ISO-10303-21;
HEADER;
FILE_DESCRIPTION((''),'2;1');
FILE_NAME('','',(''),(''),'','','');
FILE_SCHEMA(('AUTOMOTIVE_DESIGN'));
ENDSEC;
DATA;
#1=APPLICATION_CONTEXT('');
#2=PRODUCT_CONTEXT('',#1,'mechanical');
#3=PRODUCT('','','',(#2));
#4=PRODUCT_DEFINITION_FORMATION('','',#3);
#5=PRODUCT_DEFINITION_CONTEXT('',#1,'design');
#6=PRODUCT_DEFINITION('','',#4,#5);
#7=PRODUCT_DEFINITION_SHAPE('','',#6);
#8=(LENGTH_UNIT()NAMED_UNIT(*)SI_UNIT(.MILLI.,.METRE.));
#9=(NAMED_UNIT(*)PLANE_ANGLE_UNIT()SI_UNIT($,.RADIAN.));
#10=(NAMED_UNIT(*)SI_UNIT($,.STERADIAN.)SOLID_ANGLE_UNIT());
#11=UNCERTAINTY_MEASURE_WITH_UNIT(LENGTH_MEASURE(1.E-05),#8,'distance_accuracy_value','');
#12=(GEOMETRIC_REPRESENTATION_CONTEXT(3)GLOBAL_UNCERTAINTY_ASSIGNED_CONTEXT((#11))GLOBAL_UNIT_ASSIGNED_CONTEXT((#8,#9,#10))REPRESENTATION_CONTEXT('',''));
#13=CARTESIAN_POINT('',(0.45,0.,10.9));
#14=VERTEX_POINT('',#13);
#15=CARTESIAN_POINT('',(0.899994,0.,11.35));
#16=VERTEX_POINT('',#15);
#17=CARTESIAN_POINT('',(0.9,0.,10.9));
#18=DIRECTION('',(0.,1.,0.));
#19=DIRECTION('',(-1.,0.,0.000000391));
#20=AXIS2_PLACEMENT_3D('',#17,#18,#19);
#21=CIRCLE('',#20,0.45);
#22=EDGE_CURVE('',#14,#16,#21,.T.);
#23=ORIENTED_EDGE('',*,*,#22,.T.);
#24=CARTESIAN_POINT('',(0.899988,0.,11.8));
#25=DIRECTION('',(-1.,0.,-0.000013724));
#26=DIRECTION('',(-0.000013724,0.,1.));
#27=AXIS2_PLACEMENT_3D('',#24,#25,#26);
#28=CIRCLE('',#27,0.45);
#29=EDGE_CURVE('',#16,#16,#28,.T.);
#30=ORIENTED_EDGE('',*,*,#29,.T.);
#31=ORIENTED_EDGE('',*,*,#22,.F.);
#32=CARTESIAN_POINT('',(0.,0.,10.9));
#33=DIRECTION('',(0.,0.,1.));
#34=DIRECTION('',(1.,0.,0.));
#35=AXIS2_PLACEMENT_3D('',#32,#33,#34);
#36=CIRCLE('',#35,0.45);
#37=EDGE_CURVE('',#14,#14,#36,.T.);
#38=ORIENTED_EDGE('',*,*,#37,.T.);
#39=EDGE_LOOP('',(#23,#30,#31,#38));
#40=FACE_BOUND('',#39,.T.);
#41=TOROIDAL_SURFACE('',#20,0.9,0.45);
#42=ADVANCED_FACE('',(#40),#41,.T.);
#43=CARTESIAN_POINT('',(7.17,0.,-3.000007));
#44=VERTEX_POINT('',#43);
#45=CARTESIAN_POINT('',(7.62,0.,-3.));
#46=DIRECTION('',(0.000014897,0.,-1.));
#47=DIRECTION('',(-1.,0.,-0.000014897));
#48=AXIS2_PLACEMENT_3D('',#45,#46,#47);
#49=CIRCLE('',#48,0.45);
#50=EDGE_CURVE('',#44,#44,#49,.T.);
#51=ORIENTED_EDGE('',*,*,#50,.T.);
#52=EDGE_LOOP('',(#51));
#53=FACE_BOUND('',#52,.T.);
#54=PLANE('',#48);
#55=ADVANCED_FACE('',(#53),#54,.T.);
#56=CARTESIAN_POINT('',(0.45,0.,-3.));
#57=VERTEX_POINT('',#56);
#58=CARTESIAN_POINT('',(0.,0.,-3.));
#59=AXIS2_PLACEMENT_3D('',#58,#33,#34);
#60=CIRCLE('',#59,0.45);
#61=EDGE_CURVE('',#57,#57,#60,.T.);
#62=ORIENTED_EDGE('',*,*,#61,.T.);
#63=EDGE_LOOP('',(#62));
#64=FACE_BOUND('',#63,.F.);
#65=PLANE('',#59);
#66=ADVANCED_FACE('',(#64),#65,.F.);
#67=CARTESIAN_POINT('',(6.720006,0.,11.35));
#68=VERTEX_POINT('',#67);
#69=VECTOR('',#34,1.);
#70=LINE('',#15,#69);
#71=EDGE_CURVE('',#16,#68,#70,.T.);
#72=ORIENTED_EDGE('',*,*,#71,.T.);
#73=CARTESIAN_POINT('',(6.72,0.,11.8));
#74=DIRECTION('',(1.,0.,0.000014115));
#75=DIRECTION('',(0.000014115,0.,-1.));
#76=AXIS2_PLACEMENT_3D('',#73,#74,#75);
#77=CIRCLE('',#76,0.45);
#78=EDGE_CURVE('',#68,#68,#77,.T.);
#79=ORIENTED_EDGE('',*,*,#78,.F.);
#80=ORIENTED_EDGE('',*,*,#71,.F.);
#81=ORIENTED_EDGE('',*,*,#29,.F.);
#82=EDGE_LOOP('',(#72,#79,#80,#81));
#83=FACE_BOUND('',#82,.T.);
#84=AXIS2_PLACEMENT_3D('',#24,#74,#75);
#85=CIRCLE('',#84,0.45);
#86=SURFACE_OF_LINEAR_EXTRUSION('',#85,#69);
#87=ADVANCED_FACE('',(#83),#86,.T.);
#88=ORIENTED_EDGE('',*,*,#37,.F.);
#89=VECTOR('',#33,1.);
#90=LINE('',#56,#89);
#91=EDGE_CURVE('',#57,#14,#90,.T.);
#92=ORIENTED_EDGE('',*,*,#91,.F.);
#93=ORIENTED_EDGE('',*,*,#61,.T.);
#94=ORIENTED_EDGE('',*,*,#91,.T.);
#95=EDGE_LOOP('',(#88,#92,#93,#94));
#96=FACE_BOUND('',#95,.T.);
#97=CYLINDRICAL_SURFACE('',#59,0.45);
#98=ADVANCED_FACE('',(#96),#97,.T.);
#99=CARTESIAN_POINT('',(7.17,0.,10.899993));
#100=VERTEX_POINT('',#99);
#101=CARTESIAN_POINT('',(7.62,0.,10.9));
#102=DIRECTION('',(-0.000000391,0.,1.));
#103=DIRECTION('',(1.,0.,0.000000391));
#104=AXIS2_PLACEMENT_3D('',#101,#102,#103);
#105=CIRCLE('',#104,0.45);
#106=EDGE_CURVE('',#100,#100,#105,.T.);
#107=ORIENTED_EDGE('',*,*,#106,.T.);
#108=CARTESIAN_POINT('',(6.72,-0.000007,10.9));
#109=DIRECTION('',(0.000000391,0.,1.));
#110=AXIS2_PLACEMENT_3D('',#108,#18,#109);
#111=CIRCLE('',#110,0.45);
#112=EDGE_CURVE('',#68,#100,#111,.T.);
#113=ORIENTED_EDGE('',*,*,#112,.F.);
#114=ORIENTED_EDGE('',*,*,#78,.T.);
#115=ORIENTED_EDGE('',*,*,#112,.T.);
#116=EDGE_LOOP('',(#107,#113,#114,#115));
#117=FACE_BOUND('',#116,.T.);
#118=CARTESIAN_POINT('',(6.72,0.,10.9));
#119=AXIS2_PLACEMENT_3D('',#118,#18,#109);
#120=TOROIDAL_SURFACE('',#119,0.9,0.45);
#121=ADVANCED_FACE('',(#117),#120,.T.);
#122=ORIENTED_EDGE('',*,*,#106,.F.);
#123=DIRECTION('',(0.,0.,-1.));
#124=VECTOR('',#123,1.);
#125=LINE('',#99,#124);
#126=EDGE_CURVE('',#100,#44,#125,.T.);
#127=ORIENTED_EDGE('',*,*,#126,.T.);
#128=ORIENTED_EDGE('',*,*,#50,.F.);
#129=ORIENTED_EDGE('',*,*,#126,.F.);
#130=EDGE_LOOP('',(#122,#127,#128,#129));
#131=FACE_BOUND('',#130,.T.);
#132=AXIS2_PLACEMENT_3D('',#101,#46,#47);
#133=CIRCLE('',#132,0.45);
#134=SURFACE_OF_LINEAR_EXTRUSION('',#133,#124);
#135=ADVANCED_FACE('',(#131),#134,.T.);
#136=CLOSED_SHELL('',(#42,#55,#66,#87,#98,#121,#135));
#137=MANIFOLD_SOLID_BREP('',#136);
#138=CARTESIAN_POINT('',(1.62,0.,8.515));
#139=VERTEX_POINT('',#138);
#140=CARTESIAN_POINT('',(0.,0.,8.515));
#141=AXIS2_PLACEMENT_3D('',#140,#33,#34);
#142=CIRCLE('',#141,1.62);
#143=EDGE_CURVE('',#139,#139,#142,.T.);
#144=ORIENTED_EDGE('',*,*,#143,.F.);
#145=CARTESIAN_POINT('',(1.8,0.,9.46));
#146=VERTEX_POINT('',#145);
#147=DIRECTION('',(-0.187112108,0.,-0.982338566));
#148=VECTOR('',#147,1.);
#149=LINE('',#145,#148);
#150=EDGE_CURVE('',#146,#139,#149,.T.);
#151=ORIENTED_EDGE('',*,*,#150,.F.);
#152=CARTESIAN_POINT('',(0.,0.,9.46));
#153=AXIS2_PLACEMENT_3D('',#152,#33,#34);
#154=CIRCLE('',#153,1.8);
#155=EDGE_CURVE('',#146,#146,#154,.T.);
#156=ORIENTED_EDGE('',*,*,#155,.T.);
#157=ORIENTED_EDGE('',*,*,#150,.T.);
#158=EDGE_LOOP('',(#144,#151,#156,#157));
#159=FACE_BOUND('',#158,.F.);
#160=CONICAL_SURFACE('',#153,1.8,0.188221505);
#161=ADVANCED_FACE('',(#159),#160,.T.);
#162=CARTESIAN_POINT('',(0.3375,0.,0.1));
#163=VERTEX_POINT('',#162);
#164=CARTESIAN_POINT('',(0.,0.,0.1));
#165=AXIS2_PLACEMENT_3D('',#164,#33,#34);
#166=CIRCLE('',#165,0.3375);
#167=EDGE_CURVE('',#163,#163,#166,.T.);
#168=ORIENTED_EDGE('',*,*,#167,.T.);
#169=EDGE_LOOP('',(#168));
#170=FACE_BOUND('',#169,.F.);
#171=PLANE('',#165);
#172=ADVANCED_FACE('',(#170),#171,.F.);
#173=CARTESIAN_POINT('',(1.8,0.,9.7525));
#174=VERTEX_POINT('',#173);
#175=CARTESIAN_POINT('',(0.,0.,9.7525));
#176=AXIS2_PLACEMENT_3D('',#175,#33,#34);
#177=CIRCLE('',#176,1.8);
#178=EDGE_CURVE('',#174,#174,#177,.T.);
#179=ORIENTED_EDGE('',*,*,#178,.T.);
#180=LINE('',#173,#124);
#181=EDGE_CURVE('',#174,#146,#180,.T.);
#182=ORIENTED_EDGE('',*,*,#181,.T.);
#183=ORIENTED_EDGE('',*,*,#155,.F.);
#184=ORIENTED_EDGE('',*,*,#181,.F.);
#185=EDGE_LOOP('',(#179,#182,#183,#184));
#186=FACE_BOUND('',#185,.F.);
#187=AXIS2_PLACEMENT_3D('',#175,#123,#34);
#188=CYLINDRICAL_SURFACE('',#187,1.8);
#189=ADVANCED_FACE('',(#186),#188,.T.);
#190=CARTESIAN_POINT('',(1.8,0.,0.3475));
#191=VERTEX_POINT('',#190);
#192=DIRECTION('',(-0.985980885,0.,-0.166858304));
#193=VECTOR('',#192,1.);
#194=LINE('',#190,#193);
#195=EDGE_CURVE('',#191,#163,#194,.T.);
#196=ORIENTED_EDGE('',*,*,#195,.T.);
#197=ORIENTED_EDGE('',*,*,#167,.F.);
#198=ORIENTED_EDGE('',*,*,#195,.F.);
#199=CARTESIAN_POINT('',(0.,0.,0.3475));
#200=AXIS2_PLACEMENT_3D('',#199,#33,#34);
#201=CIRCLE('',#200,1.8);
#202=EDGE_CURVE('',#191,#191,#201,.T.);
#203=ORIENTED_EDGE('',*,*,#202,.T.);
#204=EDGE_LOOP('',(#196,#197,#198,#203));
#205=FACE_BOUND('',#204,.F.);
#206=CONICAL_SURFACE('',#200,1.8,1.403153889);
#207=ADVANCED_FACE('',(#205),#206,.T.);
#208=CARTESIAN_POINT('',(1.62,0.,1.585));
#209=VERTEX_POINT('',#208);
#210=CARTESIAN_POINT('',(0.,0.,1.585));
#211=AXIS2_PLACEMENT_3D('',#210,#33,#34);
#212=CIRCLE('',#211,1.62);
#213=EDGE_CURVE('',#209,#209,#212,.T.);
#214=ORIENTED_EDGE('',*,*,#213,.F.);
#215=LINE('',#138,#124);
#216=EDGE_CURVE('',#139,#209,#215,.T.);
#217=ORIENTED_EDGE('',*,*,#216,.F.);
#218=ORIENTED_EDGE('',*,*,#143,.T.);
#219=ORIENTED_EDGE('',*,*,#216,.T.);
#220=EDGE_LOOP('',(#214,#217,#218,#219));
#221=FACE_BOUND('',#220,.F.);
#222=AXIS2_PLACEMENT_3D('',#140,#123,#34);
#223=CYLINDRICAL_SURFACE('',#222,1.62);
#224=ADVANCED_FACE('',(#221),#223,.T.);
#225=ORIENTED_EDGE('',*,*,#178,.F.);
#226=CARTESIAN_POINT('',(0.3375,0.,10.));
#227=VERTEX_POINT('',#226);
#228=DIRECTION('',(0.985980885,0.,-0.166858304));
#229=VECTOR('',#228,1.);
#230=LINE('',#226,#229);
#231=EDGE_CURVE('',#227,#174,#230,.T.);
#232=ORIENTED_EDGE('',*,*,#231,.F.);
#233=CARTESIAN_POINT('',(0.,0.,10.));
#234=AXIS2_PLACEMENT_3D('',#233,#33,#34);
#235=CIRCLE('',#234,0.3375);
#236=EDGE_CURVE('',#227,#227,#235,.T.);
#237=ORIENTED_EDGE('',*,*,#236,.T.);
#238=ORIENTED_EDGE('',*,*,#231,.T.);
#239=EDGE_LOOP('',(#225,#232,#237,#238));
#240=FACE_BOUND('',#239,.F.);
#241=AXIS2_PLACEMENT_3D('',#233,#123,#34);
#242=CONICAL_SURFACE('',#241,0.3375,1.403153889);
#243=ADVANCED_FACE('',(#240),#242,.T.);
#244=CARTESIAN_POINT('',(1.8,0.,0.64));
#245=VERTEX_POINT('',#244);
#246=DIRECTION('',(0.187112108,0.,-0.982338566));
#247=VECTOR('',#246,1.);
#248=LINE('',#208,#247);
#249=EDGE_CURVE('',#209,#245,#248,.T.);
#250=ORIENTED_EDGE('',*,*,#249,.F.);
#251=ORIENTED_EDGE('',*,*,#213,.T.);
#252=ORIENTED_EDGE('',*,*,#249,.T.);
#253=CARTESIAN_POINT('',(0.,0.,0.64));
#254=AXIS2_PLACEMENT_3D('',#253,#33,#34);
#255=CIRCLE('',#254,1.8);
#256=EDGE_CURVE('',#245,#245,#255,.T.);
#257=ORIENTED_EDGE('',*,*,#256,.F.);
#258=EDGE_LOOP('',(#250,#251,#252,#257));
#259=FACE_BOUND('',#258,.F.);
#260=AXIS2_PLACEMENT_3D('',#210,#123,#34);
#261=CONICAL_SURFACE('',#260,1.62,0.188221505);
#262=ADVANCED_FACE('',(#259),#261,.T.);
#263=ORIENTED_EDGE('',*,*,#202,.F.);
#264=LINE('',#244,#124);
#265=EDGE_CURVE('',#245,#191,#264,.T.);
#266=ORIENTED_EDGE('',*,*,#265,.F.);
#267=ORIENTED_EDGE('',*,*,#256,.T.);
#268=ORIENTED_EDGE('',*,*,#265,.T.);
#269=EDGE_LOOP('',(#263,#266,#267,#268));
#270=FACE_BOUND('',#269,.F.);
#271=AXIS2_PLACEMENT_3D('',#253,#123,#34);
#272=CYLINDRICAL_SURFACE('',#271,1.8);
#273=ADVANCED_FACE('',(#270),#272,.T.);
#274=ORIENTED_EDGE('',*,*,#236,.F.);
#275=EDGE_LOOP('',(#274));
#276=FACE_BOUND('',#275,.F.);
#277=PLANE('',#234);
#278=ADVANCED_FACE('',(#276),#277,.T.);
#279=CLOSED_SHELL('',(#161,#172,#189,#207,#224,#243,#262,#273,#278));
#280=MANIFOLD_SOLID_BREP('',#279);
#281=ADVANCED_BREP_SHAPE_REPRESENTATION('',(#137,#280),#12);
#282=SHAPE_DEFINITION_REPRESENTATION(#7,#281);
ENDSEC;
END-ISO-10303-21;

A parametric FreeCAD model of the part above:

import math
import FreeCAD as App
import Part
import Sketcher
Q = App.Units.Quantity


def add_polygon(sketch, points):
    """Adds a closed chain of lines whose ends are joined by coincident constraints."""
    first, n = sketch.GeometryCount, len(points)
    for a, b in zip(points, points[1:] + points[:1]):
        sketch.addGeometry(Part.LineSegment(App.Vector(*a, 0), App.Vector(*b, 0)), False)
    for i in range(n):
        sketch.addConstraint(Sketcher.Constraint("Coincident", first + i, 2, first + (i + 1) % n, 1))

doc = App.newDocument("Part")
body = doc.addObject("PartDesign::Body", "Body")

sketch1 = body.newObject("Sketcher::SketchObject", "Sketch")
sketch1.AttachmentSupport = (doc.getObject("XY_Plane"), [""])
sketch1.MapMode = "FlatFace"
sketch1.AttachmentOffset = App.Placement(App.Vector(0, 0, -2), App.Rotation())
sketch1.addGeometry(Part.Circle(App.Vector(0, 0, 0), App.Vector(0, 0, 1), 0.45), False)
sketch1.addConstraint(Sketcher.Constraint("Coincident", 0, 3, -1, 1))
sketch1.addConstraint(Sketcher.Constraint("Diameter", 0, Q("0.9 mm")))

sketch2 = body.newObject("Sketcher::SketchObject", "Sketch001")
sketch2.AttachmentSupport = (doc.getObject("XZ_Plane"), [""])
sketch2.MapMode = "FlatFace"
sketch2.addGeometry(Part.LineSegment(App.Vector(0, -3, 0), App.Vector(0, 10.9, 0)), False)
sketch2.addGeometry(Part.ArcOfCircle(Part.Circle(App.Vector(0.9, 10.9, 0), App.Vector(0, 0, 1), 0.9), math.radians(90.000786), math.radians(179.999978)), False)
sketch2.addGeometry(Part.LineSegment(App.Vector(0.899988, 11.8, 0), App.Vector(6.72, 11.8, 0)), False)
sketch2.addGeometry(Part.ArcOfCircle(Part.Circle(App.Vector(6.72, 10.9, 0), App.Vector(0, 0, 1), 0.9), math.radians(0.000022), math.radians(89.999978)), False)
sketch2.addGeometry(Part.LineSegment(App.Vector(7.62, 10.9, 0), App.Vector(7.62, -3, 0)), False)
sketch2.addConstraint(Sketcher.Constraint("Tangent", 0, 2, 1, 2))
sketch2.addConstraint(Sketcher.Constraint("Coincident", 1, 1, 2, 1))
sketch2.addConstraint(Sketcher.Constraint("Tangent", 2, 2, 3, 2))
sketch2.addConstraint(Sketcher.Constraint("Tangent", 3, 1, 4, 1))
sketch2.addConstraint(Sketcher.Constraint("Vertical", 0))
sketch2.addConstraint(Sketcher.Constraint("Horizontal", 2))
sketch2.addConstraint(Sketcher.Constraint("Vertical", 4))
sketch2.addConstraint(Sketcher.Constraint("Equal", 1, 3))
sketch2.addConstraint(Sketcher.Constraint("PointOnObject", 0, 1, -2))
sketch2.addConstraint(Sketcher.Constraint("Horizontal", 0, 1, 4, 2))
sketch2.addConstraint(Sketcher.Constraint("Radius", 1, Q("0.9 mm")))
sketch2.addConstraint(Sketcher.Constraint("DistanceY", 0, 1, 0, 2, Q("13.9 mm")))
sketch2.addConstraint(Sketcher.Constraint("DistanceY", 0, 1, -1, 1, Q("3 mm")))
sketch2.addConstraint(Sketcher.Constraint("DistanceX", -1, 1, 3, 3, Q("6.72 mm")))
sketch2.addConstraint(Sketcher.Constraint("DistanceX", 2, 1, 2, 2, Q("5.820012 mm")))
doc.recompute()

additivepipe = body.newObject("PartDesign::AdditivePipe", "AdditivePipe")
additivepipe.Profile = sketch1
additivepipe.Spine = (sketch2, ["Edge1", "Edge2", "Edge3", "Edge4", "Edge5"])
body2 = doc.addObject("PartDesign::Body", "Body001")

sketch3 = body2.newObject("Sketcher::SketchObject", "Sketch002")
sketch3.AttachmentSupport = (doc.getObject("XZ_Plane001"), [""])
sketch3.MapMode = "FlatFace"
add_polygon(sketch3, [(0, 10), (0, 0.1), (0.3375, 0.1), (1.8, 0.3475), (1.8, 0.64), (1.62, 1.585), (1.62, 8.515), (1.8, 9.46), (1.8, 9.7525), (0.3375, 10)])
sketch3.addConstraint(Sketcher.Constraint("Vertical", 0))
sketch3.addConstraint(Sketcher.Constraint("Horizontal", 1))
sketch3.addConstraint(Sketcher.Constraint("Vertical", 3))
sketch3.addConstraint(Sketcher.Constraint("Vertical", 5))
sketch3.addConstraint(Sketcher.Constraint("Vertical", 7))
sketch3.addConstraint(Sketcher.Constraint("Horizontal", 9))
sketch3.addConstraint(Sketcher.Constraint("PointOnObject", 0, 2, -2))
sketch3.addConstraint(Sketcher.Constraint("Vertical", 3, 2, 6, 2))
sketch3.addConstraint(Sketcher.Constraint("Vertical", 1, 2, 8, 2))
sketch3.addConstraint(Sketcher.Constraint("Equal", 3, 7))
sketch3.addConstraint(Sketcher.Constraint("Equal", 4, 6))
sketch3.addConstraint(Sketcher.Constraint("Equal", 2, 8))
sketch3.addConstraint(Sketcher.Constraint("DistanceY", 0, 2, 0, 1, Q("9.9 mm")))
sketch3.addConstraint(Sketcher.Constraint("DistanceY", -1, 1, 8, 2, Q("10 mm")))
sketch3.addConstraint(Sketcher.Constraint("DistanceY", 5, 1, 5, 2, Q("6.93 mm")))
sketch3.addConstraint(Sketcher.Constraint("DistanceX", -1, 1, 2, 2, Q("1.8 mm")))
sketch3.addConstraint(Sketcher.Constraint("DistanceY", -1, 1, 3, 2, Q("0.64 mm")))
sketch3.addConstraint(Sketcher.Constraint("DistanceX", -1, 1, 4, 2, Q("1.62 mm")))
sketch3.addConstraint(Sketcher.Constraint("DistanceX", 1, 1, 1, 2, Q("0.3375 mm")))
sketch3.addConstraint(Sketcher.Constraint("DistanceY", 3, 1, 3, 2, Q("0.2925 mm")))
revolution = body2.newObject("PartDesign::Revolution", "Revolution")
revolution.Profile = sketch3
revolution.ReferenceAxis = (sketch3, ["V_Axis"])
revolution.Angle = 360

doc.recompute()
